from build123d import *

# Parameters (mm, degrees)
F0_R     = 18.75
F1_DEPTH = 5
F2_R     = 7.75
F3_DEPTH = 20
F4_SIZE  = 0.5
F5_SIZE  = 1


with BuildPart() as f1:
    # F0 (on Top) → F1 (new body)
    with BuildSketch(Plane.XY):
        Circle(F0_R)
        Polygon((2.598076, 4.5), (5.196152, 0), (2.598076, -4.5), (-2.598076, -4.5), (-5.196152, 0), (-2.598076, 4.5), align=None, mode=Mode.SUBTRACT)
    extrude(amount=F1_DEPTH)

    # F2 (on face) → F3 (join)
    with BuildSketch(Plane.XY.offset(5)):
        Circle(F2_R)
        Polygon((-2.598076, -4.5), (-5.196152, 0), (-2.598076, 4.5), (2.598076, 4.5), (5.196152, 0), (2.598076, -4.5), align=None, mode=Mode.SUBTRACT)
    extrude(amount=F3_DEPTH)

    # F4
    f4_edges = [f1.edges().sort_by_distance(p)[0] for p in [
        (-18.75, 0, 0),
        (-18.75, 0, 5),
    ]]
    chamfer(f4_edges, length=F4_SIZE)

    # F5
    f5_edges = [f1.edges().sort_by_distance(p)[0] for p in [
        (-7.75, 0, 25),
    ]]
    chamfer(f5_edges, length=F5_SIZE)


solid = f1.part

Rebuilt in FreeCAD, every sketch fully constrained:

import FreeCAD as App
import Part
import Sketcher
Q = App.Units.Quantity


def edges_at(feature, points):
    """Names of the edges that pass closest to the given points."""
    edges = feature.Shape.Edges
    near = lambda p: min(range(len(edges)), key=lambda i: edges[i].distToShape(Part.Vertex(*p))[0])
    return sorted({f"Edge{near(p) + 1}" for p in points})


def add_polygon(sketch, points):
    """Adds a closed chain of lines whose ends are joined by coincident constraints."""
    first, n = sketch.GeometryCount, len(points)
    for a, b in zip(points, points[1:] + points[:1]):
        sketch.addGeometry(Part.LineSegment(App.Vector(*a, 0), App.Vector(*b, 0)), False)
    for i in range(n):
        sketch.addConstraint(Sketcher.Constraint("Coincident", first + i, 2, first + (i + 1) % n, 1))

doc = App.newDocument("Part")
body = doc.addObject("PartDesign::Body", "Body")

# Sketch on XY plane
sketch1 = body.newObject("Sketcher::SketchObject", "Sketch")
sketch1.AttachmentSupport = (doc.getObject("XY_Plane"), [""])
sketch1.MapMode = "FlatFace"
sketch1.addGeometry(Part.Circle(App.Vector(0, 0, 0), App.Vector(0, 0, 1), 19), False)  # 0
add_polygon(sketch1, [(-3, 4), (3, 4), (5, 0), (3, -4), (-3, -4), (-5, 0)])  # lines 1-6
sketch1.addConstraint(Sketcher.Constraint("Horizontal", 1))
sketch1.addConstraint(Sketcher.Constraint("Horizontal", 4))
sketch1.addConstraint(Sketcher.Constraint("Coincident", 0, 3, -1, 1))
sketch1.addConstraint(Sketcher.Constraint("Symmetric", 1, 2, 4, 2, -1, 1))
sketch1.addConstraint(Sketcher.Constraint("Symmetric", 2, 2, 5, 2, -1, 1))
sketch1.addConstraint(Sketcher.Constraint("PointOnObject", 2, 2, -1))
sketch1.addConstraint(Sketcher.Constraint("Parallel", 3, 6))
sketch1.addConstraint(Sketcher.Constraint("Vertical", 1, 2, 3, 2))
sketch1.addConstraint(Sketcher.Constraint("Diameter", 0, 37.5))
sketch1.addConstraint(Sketcher.Constraint("Angle", 2, Q("-60.000002 deg")))
sketch1.addConstraint(Sketcher.Constraint("DistanceY", 3, 2, 1, 2, 9.0))
sketch1.addConstraint(Sketcher.Constraint("DistanceX", 1, 1, 1, 2, 5.196152))
pad1 = body.newObject("PartDesign::Pad", "Pad")
pad1.Profile = sketch1
pad1.Length = 5

# Sketch on XY plane
sketch2 = body.newObject("Sketcher::SketchObject", "Sketch001")
sketch2.AttachmentSupport = (doc.getObject("XY_Plane"), [""])
sketch2.MapMode = "FlatFace"
sketch2.AttachmentOffset = App.Placement(App.Vector(0, 0, 5), App.Rotation())
sketch2.addGeometry(Part.Circle(App.Vector(0, 0, 0), App.Vector(0, 0, 1), 8), False)  # 0
add_polygon(sketch2, [(3, -4), (-3, -4), (-5, 0), (-3, 4), (3, 4), (5, 0)])  # lines 1-6
sketch2.addConstraint(Sketcher.Constraint("Horizontal", 1))
sketch2.addConstraint(Sketcher.Constraint("Horizontal", 4))
sketch2.addConstraint(Sketcher.Constraint("Coincident", 0, 3, -1, 1))
sketch2.addConstraint(Sketcher.Constraint("Symmetric", 1, 2, 4, 2, -1, 1))
sketch2.addConstraint(Sketcher.Constraint("Symmetric", 2, 2, 5, 2, -1, 1))
sketch2.addConstraint(Sketcher.Constraint("PointOnObject", 2, 2, -1))
sketch2.addConstraint(Sketcher.Constraint("Parallel", 3, 6))
sketch2.addConstraint(Sketcher.Constraint("Vertical", 1, 2, 3, 2))
sketch2.addConstraint(Sketcher.Constraint("Diameter", 0, 15.5))
sketch2.addConstraint(Sketcher.Constraint("Angle", 2, Q("119.999998 deg")))
sketch2.addConstraint(Sketcher.Constraint("DistanceY", 1, 2, 3, 2, 9.0))
sketch2.addConstraint(Sketcher.Constraint("DistanceX", 1, 2, 1, 1, 5.196152))
pad2 = body.newObject("PartDesign::Pad", "Pad001")
pad2.Profile = sketch2
pad2.Length = 20
doc.recompute()

chamfer = body.newObject("PartDesign::Chamfer", "Chamfer")
chamfer.Base = (pad2, edges_at(pad2, [(-18.75, 0, 0), (-18.75, 0, 5)]))
chamfer.Size = 0.5
doc.recompute()

chamfer2 = body.newObject("PartDesign::Chamfer", "Chamfer001")
chamfer2.Base = (chamfer, edges_at(chamfer, [(-7.75, 0, 25)]))
chamfer2.Size = 1

doc.recompute()
